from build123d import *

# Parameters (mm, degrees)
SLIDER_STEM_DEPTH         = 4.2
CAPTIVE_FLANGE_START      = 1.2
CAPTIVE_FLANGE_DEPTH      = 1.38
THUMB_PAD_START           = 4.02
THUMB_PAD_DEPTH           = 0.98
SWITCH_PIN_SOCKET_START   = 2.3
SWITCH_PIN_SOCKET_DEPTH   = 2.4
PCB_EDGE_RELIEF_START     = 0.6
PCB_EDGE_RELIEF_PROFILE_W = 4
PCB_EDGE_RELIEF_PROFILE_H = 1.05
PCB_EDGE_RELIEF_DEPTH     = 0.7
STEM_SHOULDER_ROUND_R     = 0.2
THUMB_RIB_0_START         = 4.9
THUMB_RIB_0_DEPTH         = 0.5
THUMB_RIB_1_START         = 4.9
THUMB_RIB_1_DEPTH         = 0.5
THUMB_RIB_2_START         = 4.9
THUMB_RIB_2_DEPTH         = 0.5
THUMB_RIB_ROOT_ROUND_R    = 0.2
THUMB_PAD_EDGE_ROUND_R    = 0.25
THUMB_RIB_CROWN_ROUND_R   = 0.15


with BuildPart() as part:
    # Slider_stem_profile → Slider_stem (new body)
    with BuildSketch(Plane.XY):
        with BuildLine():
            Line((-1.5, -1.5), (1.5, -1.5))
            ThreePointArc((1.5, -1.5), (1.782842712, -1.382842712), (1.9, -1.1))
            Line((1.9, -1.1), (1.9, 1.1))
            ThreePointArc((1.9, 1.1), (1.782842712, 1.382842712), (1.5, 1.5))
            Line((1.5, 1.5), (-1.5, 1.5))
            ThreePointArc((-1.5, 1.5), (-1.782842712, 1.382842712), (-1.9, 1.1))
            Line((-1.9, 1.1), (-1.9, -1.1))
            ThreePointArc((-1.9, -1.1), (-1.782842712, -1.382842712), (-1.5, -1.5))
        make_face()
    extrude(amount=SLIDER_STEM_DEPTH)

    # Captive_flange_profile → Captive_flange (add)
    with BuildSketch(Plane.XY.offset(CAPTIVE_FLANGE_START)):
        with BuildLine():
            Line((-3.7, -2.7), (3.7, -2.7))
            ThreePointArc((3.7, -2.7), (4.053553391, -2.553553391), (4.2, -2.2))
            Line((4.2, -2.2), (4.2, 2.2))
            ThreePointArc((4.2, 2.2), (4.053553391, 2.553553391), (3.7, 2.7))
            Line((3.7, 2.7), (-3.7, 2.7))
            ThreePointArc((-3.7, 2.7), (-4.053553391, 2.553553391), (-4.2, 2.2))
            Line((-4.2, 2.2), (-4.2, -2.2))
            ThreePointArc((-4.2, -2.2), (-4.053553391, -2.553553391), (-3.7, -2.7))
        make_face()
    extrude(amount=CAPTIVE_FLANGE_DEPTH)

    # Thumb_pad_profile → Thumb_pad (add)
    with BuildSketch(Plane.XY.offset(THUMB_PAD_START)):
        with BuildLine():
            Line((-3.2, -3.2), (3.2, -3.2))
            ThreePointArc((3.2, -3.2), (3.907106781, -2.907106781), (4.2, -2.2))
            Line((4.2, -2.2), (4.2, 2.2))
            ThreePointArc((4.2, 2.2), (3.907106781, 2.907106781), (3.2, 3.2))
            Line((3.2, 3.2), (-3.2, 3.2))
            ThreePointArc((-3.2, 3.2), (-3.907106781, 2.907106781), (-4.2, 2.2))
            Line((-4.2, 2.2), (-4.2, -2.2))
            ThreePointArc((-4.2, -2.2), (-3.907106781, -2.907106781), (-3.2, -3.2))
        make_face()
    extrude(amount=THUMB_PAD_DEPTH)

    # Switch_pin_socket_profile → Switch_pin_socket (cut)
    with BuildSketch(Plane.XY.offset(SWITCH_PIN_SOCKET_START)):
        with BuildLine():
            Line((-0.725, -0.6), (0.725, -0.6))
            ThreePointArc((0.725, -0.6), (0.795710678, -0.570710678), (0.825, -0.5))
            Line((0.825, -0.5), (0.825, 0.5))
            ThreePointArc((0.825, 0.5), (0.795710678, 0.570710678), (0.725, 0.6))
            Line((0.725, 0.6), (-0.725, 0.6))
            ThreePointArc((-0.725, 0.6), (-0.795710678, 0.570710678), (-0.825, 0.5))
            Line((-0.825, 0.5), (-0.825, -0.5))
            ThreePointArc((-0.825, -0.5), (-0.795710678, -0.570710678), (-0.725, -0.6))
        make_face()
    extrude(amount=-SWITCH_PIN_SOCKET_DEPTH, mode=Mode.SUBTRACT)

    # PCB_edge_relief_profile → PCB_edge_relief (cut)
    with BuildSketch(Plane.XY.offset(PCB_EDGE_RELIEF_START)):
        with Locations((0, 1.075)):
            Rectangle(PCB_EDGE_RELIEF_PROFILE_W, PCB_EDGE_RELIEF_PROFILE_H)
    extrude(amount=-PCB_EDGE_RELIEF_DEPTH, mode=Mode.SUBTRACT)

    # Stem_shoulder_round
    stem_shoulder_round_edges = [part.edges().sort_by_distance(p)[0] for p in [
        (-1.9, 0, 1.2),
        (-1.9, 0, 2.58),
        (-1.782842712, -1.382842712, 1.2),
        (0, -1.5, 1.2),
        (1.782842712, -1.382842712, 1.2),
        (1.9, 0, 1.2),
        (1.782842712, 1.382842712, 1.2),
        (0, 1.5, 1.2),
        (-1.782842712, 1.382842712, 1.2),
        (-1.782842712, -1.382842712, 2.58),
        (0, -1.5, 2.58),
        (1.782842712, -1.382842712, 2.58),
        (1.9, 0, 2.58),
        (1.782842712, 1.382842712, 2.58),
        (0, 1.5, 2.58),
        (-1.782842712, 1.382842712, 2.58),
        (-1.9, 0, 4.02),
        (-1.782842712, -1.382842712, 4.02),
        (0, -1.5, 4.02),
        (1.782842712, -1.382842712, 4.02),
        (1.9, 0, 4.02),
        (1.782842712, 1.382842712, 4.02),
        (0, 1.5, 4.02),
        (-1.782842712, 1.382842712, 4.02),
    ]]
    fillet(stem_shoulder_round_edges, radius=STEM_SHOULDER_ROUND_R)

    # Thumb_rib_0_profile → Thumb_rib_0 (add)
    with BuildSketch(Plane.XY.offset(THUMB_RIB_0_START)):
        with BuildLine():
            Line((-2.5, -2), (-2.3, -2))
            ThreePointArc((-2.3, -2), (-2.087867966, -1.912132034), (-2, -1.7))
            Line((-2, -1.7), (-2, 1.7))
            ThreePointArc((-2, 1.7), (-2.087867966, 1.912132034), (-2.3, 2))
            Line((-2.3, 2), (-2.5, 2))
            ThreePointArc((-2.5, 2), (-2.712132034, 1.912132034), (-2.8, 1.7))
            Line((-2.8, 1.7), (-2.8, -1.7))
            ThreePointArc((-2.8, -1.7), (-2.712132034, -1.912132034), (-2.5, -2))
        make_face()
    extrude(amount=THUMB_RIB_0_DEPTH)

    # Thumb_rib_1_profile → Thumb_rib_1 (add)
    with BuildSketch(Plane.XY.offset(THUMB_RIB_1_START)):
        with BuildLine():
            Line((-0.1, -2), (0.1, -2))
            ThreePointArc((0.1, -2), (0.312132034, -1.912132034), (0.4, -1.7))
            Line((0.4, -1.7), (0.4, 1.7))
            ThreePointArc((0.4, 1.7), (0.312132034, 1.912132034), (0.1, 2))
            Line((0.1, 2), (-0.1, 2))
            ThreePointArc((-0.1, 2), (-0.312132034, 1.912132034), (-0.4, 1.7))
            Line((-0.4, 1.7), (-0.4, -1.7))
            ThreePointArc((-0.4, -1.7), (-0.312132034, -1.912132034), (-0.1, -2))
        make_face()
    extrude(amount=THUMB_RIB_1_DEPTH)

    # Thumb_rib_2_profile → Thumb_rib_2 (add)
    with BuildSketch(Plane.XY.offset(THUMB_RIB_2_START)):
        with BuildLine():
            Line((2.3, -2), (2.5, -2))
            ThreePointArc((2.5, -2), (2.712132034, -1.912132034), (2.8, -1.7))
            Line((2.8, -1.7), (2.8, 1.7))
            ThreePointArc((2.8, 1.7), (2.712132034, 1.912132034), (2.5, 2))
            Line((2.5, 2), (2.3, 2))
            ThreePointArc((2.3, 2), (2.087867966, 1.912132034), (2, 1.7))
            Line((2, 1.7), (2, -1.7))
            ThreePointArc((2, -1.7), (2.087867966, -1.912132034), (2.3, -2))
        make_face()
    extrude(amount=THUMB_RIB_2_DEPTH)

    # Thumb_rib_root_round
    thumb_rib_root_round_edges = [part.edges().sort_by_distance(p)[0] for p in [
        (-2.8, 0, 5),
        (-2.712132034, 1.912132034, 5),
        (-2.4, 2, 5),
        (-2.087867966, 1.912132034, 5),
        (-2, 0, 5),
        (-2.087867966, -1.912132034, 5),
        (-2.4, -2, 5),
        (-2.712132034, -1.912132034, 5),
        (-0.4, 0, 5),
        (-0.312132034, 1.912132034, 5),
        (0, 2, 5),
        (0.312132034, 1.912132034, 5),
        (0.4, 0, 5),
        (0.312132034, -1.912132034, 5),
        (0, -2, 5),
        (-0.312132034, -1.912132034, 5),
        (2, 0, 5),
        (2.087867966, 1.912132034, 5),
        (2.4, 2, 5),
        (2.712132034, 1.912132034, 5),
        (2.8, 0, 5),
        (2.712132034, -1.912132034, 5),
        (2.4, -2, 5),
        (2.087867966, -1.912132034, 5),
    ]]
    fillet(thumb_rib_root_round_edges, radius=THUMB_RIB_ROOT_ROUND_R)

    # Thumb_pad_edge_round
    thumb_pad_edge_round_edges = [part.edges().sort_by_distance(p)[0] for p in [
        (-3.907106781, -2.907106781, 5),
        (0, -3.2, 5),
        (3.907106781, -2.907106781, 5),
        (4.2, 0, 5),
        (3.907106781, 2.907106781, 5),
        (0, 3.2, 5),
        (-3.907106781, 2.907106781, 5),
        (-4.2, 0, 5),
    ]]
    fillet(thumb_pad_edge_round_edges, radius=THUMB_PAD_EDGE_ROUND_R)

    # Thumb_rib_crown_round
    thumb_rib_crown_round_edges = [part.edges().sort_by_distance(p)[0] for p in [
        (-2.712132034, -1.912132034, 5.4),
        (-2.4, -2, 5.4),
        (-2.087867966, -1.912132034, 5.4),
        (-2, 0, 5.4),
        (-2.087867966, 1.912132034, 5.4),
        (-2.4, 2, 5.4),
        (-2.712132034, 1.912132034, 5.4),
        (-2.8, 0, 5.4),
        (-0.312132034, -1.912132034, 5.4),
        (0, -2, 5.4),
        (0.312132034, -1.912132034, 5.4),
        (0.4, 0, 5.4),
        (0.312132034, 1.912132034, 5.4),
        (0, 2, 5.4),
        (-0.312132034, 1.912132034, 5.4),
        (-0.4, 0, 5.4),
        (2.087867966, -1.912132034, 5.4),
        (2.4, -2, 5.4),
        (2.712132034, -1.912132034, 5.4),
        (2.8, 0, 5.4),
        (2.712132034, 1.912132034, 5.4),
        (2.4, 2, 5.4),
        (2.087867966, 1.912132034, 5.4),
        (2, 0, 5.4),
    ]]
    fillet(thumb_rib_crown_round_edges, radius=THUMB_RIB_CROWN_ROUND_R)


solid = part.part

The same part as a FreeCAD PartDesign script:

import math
import FreeCAD as App
import Part
import Sketcher


def edges_at(feature, points):
    """Names of the edges that pass closest to the given points."""
    edges = feature.Shape.Edges
    near = lambda p: min(range(len(edges)), key=lambda i: edges[i].distToShape(Part.Vertex(*p))[0])
    return sorted({f"Edge{near(p) + 1}" for p in points})

doc = App.newDocument("Part")
params = doc.addObject("Spreadsheet::Sheet", "Params")
for row, (alias, value) in enumerate([
    ("sketch1_radius", "0.4 mm"),
    ("sketch1_width", "3 mm"),
    ("sketch1_height", "2.2 mm"),
    ("pad1_length", "4.2 mm"),
    ("sketch2_radius", "0.5 mm"),
    ("sketch2_width", "7.4 mm"),
    ("sketch2_height", "4.4 mm"),
    ("pad2_length", "1.38 mm"),
    ("sketch3_radius", "1 mm"),
    ("sketch3_width", "6.4 mm"),
    ("sketch3_height", "4.4 mm"),
    ("pad3_length", "0.98 mm"),
    ("sketch4_radius", "0.1 mm"),
    ("sketch4_height", "1 mm"),
    ("sketch4_width", "1.45 mm"),
    ("pocket1_length", "2.4 mm"),
    ("sketch5_width", "4 mm"),
    ("sketch5_height", "1.05 mm"),
    ("pocket2_length", "0.7 mm"),
    ("fillet_radius", "0.2 mm"),
    ("sketch6_radius", "0.3 mm"),
    ("sketch6_width", "0.2 mm"),
    ("sketch6_height", "3.4 mm"),
    ("pad4_length", "0.5 mm"),
    ("sketch7_radius", "0.3 mm"),
    ("sketch7_width", "0.2 mm"),
    ("sketch7_height", "3.4 mm"),
    ("pad5_length", "0.5 mm"),
    ("sketch8_radius", "0.3 mm"),
    ("sketch8_width", "0.2 mm"),
    ("sketch8_height", "3.4 mm"),
    ("pad6_length", "0.5 mm"),
    ("fillet2_radius", "0.2 mm"),
    ("fillet3_radius", "0.25 mm"),
    ("fillet4_radius", "0.15 mm"),
], start=1):
    params.set(f"A{row}", alias)
    params.set(f"B{row}", "=" + value)
    params.setAlias(f"B{row}", alias)

body = doc.addObject("PartDesign::Body", "Body")

# Sketch on XY plane
sketch1 = body.newObject("Sketcher::SketchObject", "Sketch")
sketch1.AttachmentSupport = (doc.getObject("XY_Plane"), [""])
sketch1.MapMode = "FlatFace"
sketch1.addGeometry([
    Part.LineSegment(App.Vector(-1.5, -1.5, 0), App.Vector(1.5, -1.5, 0)),  # 0
    Part.ArcOfCircle(Part.Circle(App.Vector(1.5, -1.1, 0), App.Vector(0, 0, 1), 0.4), math.radians(-90), math.radians(0)),  # 1
    Part.LineSegment(App.Vector(1.9, -1.1, 0), App.Vector(1.9, 1.1, 0)),  # 2
    Part.ArcOfCircle(Part.Circle(App.Vector(1.5, 1.1, 0), App.Vector(0, 0, 1), 0.4), math.radians(0), math.radians(90)),  # 3
    Part.LineSegment(App.Vector(1.5, 1.5, 0), App.Vector(-1.5, 1.5, 0)),  # 4
    Part.ArcOfCircle(Part.Circle(App.Vector(-1.5, 1.1, 0), App.Vector(0, 0, 1), 0.4), math.radians(90), math.radians(180)),  # 5
    Part.LineSegment(App.Vector(-1.9, 1.1, 0), App.Vector(-1.9, -1.1, 0)),  # 6
    Part.ArcOfCircle(Part.Circle(App.Vector(-1.5, -1.1, 0), App.Vector(0, 0, 1), 0.4), math.radians(-180), math.radians(-90)),  # 7
], False)
sketch1.addConstraint([
    Sketcher.Constraint("Tangent", 0, 2, 1, 1),
    Sketcher.Constraint("Tangent", 1, 2, 2, 1),
    Sketcher.Constraint("Tangent", 2, 2, 3, 1),
    Sketcher.Constraint("Tangent", 3, 2, 4, 1),
    Sketcher.Constraint("Tangent", 4, 2, 5, 1),
    Sketcher.Constraint("Tangent", 5, 2, 6, 1),
    Sketcher.Constraint("Tangent", 6, 2, 7, 1),
    Sketcher.Constraint("Tangent", 7, 2, 0, 1),
    Sketcher.Constraint("Horizontal", 0),
    Sketcher.Constraint("Vertical", 2),
    Sketcher.Constraint("Horizontal", 4),
    Sketcher.Constraint("Vertical", 6),
    Sketcher.Constraint("Equal", 1, 3),
    Sketcher.Constraint("Equal", 3, 5),
    Sketcher.Constraint("Equal", 5, 7),
    Sketcher.Constraint("Symmetric", 1, 3, 5, 3, -1, 1),
    Sketcher.Constraint("Radius", 1, 0.4),
    Sketcher.Constraint("DistanceX", 0, 1, 0, 2, 3.0),
    Sketcher.Constraint("DistanceY", 2, 1, 2, 2, 2.2),
])
sketch1.setExpression("Constraints[16]", "Params.sketch1_radius")
sketch1.setExpression("Constraints[17]", "Params.sketch1_width")
sketch1.setExpression("Constraints[18]", "Params.sketch1_height")
pad1 = body.newObject("PartDesign::Pad", "Pad")
pad1.Profile = sketch1
pad1.setExpression("Length", "Params.pad1_length")

# Sketch on XY plane
sketch2 = body.newObject("Sketcher::SketchObject", "Sketch001")
sketch2.AttachmentSupport = (doc.getObject("XY_Plane"), [""])
sketch2.MapMode = "FlatFace"
sketch2.AttachmentOffset = App.Placement(App.Vector(0, 0, 1.2), App.Rotation())
sketch2.addGeometry([
    Part.LineSegment(App.Vector(-3.7, -2.7, 0), App.Vector(3.7, -2.7, 0)),  # 0
    Part.ArcOfCircle(Part.Circle(App.Vector(3.7, -2.2, 0), App.Vector(0, 0, 1), 0.5), math.radians(-90), math.radians(0)),  # 1
    Part.LineSegment(App.Vector(4.2, -2.2, 0), App.Vector(4.2, 2.2, 0)),  # 2
    Part.ArcOfCircle(Part.Circle(App.Vector(3.7, 2.2, 0), App.Vector(0, 0, 1), 0.5), math.radians(0), math.radians(90)),  # 3
    Part.LineSegment(App.Vector(3.7, 2.7, 0), App.Vector(-3.7, 2.7, 0)),  # 4
    Part.ArcOfCircle(Part.Circle(App.Vector(-3.7, 2.2, 0), App.Vector(0, 0, 1), 0.5), math.radians(90), math.radians(180)),  # 5
    Part.LineSegment(App.Vector(-4.2, 2.2, 0), App.Vector(-4.2, -2.2, 0)),  # 6
    Part.ArcOfCircle(Part.Circle(App.Vector(-3.7, -2.2, 0), App.Vector(0, 0, 1), 0.5), math.radians(180), math.radians(270)),  # 7
], False)
sketch2.addConstraint([
    Sketcher.Constraint("Tangent", 0, 2, 1, 1),
    Sketcher.Constraint("Tangent", 1, 2, 2, 1),
    Sketcher.Constraint("Tangent", 2, 2, 3, 1),
    Sketcher.Constraint("Tangent", 3, 2, 4, 1),
    Sketcher.Constraint("Tangent", 4, 2, 5, 1),
    Sketcher.Constraint("Tangent", 5, 2, 6, 1),
    Sketcher.Constraint("Tangent", 6, 2, 7, 1),
    Sketcher.Constraint("Tangent", 7, 2, 0, 1),
    Sketcher.Constraint("Horizontal", 0),
    Sketcher.Constraint("Vertical", 2),
    Sketcher.Constraint("Horizontal", 4),
    Sketcher.Constraint("Vertical", 6),
    Sketcher.Constraint("Equal", 1, 3),
    Sketcher.Constraint("Equal", 3, 5),
    Sketcher.Constraint("Equal", 5, 7),
    Sketcher.Constraint("Symmetric", 1, 3, 5, 3, -1, 1),
    Sketcher.Constraint("Radius", 1, 0.5),
    Sketcher.Constraint("DistanceX", 0, 1, 0, 2, 7.4),
    Sketcher.Constraint("DistanceY", 2, 1, 2, 2, 4.4),
])
sketch2.setExpression("Constraints[16]", "Params.sketch2_radius")
sketch2.setExpression("Constraints[17]", "Params.sketch2_width")
sketch2.setExpression("Constraints[18]", "Params.sketch2_height")
pad2 = body.newObject("PartDesign::Pad", "Pad001")
pad2.Profile = sketch2
pad2.setExpression("Length", "Params.pad2_length")

# Sketch on XY plane
sketch3 = body.newObject("Sketcher::SketchObject", "Sketch002")
sketch3.AttachmentSupport = (doc.getObject("XY_Plane"), [""])
sketch3.MapMode = "FlatFace"
sketch3.AttachmentOffset = App.Placement(App.Vector(0, 0, 4.02), App.Rotation())
sketch3.addGeometry([
    Part.LineSegment(App.Vector(-3.2, -3.2, 0), App.Vector(3.2, -3.2, 0)),  # 0
    Part.ArcOfCircle(Part.Circle(App.Vector(3.2, -2.2, 0), App.Vector(0, 0, 1), 1), math.radians(-90), math.radians(0)),  # 1
    Part.LineSegment(App.Vector(4.2, -2.2, 0), App.Vector(4.2, 2.2, 0)),  # 2
    Part.ArcOfCircle(Part.Circle(App.Vector(3.2, 2.2, 0), App.Vector(0, 0, 1), 1), math.radians(0), math.radians(90)),  # 3
    Part.LineSegment(App.Vector(3.2, 3.2, 0), App.Vector(-3.2, 3.2, 0)),  # 4
    Part.ArcOfCircle(Part.Circle(App.Vector(-3.2, 2.2, 0), App.Vector(0, 0, 1), 1), math.radians(90), math.radians(180)),  # 5
    Part.LineSegment(App.Vector(-4.2, 2.2, 0), App.Vector(-4.2, -2.2, 0)),  # 6
    Part.ArcOfCircle(Part.Circle(App.Vector(-3.2, -2.2, 0), App.Vector(0, 0, 1), 1), math.radians(-180), math.radians(-90)),  # 7
], False)
sketch3.addConstraint([
    Sketcher.Constraint("Tangent", 0, 2, 1, 1),
    Sketcher.Constraint("Tangent", 1, 2, 2, 1),
    Sketcher.Constraint("Tangent", 2, 2, 3, 1),
    Sketcher.Constraint("Tangent", 3, 2, 4, 1),
    Sketcher.Constraint("Tangent", 4, 2, 5, 1),
    Sketcher.Constraint("Tangent", 5, 2, 6, 1),
    Sketcher.Constraint("Tangent", 6, 2, 7, 1),
    Sketcher.Constraint("Tangent", 7, 2, 0, 1),
    Sketcher.Constraint("Horizontal", 0),
    Sketcher.Constraint("Vertical", 2),
    Sketcher.Constraint("Horizontal", 4),
    Sketcher.Constraint("Vertical", 6),
    Sketcher.Constraint("Equal", 1, 3),
    Sketcher.Constraint("Equal", 3, 5),
    Sketcher.Constraint("Equal", 5, 7),
    Sketcher.Constraint("Symmetric", 1, 3, 5, 3, -1, 1),
    Sketcher.Constraint("Radius", 1, 1.0),
    Sketcher.Constraint("DistanceX", 0, 1, 0, 2, 6.4),
    Sketcher.Constraint("DistanceY", 2, 1, 2, 2, 4.4),
])
sketch3.setExpression("Constraints[16]", "Params.sketch3_radius")
sketch3.setExpression("Constraints[17]", "Params.sketch3_width")
sketch3.setExpression("Constraints[18]", "Params.sketch3_height")
pad3 = body.newObject("PartDesign::Pad", "Pad002")
pad3.Profile = sketch3
pad3.setExpression("Length", "Params.pad3_length")

# Sketch on XY plane
sketch4 = body.newObject("Sketcher::SketchObject", "Sketch003")
sketch4.AttachmentSupport = (doc.getObject("XY_Plane"), [""])
sketch4.MapMode = "FlatFace"
sketch4.AttachmentOffset = App.Placement(App.Vector(0, 0, 2.3), App.Rotation())
sketch4.addGeometry([
    Part.LineSegment(App.Vector(-0.72, -0.6, 0), App.Vector(0.72, -0.6, 0)),  # 0
    Part.ArcOfCircle(Part.Circle(App.Vector(0.72, -0.5, 0), App.Vector(0, 0, 1), 0.1), math.radians(-90), math.radians(0)),  # 1
    Part.LineSegment(App.Vector(0.82, -0.5, 0), App.Vector(0.82, 0.5, 0)),  # 2
    Part.ArcOfCircle(Part.Circle(App.Vector(0.72, 0.5, 0), App.Vector(0, 0, 1), 0.1), math.radians(0), math.radians(90)),  # 3
    Part.LineSegment(App.Vector(0.72, 0.6, 0), App.Vector(-0.72, 0.6, 0)),  # 4
    Part.ArcOfCircle(Part.Circle(App.Vector(-0.72, 0.5, 0), App.Vector(0, 0, 1), 0.1), math.radians(90), math.radians(180)),  # 5
    Part.LineSegment(App.Vector(-0.82, 0.5, 0), App.Vector(-0.82, -0.5, 0)),  # 6
    Part.ArcOfCircle(Part.Circle(App.Vector(-0.72, -0.5, 0), App.Vector(0, 0, 1), 0.1), math.radians(180), math.radians(270)),  # 7
], False)
sketch4.addConstraint([
    Sketcher.Constraint("Tangent", 0, 2, 1, 1),
    Sketcher.Constraint("Tangent", 1, 2, 2, 1),
    Sketcher.Constraint("Tangent", 2, 2, 3, 1),
    Sketcher.Constraint("Tangent", 3, 2, 4, 1),
    Sketcher.Constraint("Tangent", 4, 2, 5, 1),
    Sketcher.Constraint("Tangent", 5, 2, 6, 1),
    Sketcher.Constraint("Tangent", 6, 2, 7, 1),
    Sketcher.Constraint("Tangent", 7, 2, 0, 1),
    Sketcher.Constraint("Horizontal", 0),
    Sketcher.Constraint("Vertical", 2),
    Sketcher.Constraint("Horizontal", 4),
    Sketcher.Constraint("Vertical", 6),
    Sketcher.Constraint("Equal", 1, 3),
    Sketcher.Constraint("Equal", 3, 5),
    Sketcher.Constraint("Equal", 5, 7),
    Sketcher.Constraint("Symmetric", 1, 3, 5, 3, -1, 1),
    Sketcher.Constraint("Radius", 1, 0.1),
    Sketcher.Constraint("DistanceY", 2, 1, 2, 2, 1.0),
    Sketcher.Constraint("DistanceX", 0, 1, 0, 2, 1.45),
])
sketch4.setExpression("Constraints[16]", "Params.sketch4_radius")
sketch4.setExpression("Constraints[17]", "Params.sketch4_height")
sketch4.setExpression("Constraints[18]", "Params.sketch4_width")
pocket1 = body.newObject("PartDesign::Pocket", "Pocket")
pocket1.Profile = sketch4
pocket1.setExpression("Length", "Params.pocket1_length")

# Sketch on XY plane
sketch5 = body.newObject("Sketcher::SketchObject", "Sketch004")
sketch5.AttachmentSupport = (doc.getObject("XY_Plane"), [""])
sketch5.MapMode = "FlatFace"
sketch5.AttachmentOffset = App.Placement(App.Vector(0, 0, 0.6), App.Rotation())
sketch5.addGeometry([
    Part.LineSegment(App.Vector(-2, 1.6, 0), App.Vector(-2, 0.6, 0)),
    Part.LineSegment(App.Vector(-2, 0.6, 0), App.Vector(2, 0.6, 0)),
    Part.LineSegment(App.Vector(2, 0.6, 0), App.Vector(2, 1.6, 0)),
    Part.LineSegment(App.Vector(2, 1.6, 0), App.Vector(-2, 1.6, 0)),
], False)
sketch5.addConstraint([
    Sketcher.Constraint("Coincident", 0, 2, 1, 1),
    Sketcher.Constraint("Coincident", 1, 2, 2, 1),
    Sketcher.Constraint("Coincident", 2, 2, 3, 1),
    Sketcher.Constraint("Coincident", 3, 2, 0, 1),
    Sketcher.Constraint("Vertical", 0),
    Sketcher.Constraint("Horizontal", 1),
    Sketcher.Constraint("Vertical", 2),
    Sketcher.Constraint("Horizontal", 3),
    Sketcher.Constraint("DistanceX", 1, 1, 1, 2, 4.0),
    Sketcher.Constraint("DistanceX", 0, 2, -1, 1, 2.0),
    Sketcher.Constraint("DistanceY", 0, 2, 0, 1, 1.05),
    Sketcher.Constraint("DistanceY", -1, 1, 2, 2, 1.6),
])
sketch5.setExpression("Constraints[8]", "Params.sketch5_width")
sketch5.setExpression("Constraints[10]", "Params.sketch5_height")
pocket2 = body.newObject("PartDesign::Pocket", "Pocket001")
pocket2.Profile = sketch5
pocket2.setExpression("Length", "Params.pocket2_length")
doc.recompute()

fillet = body.newObject("PartDesign::Fillet", "Fillet")
fillet.Base = (pocket2, edges_at(pocket2, [
    (-1.9, 0, 1.2),
    (-1.9, 0, 2.58),
    (-1.783, -1.383, 1.2),
    (0, -1.5, 1.2),
    (1.783, -1.383, 1.2),
    (1.9, 0, 1.2),
    (1.783, 1.383, 1.2),
    (0, 1.5, 1.2),
    (-1.783, 1.383, 1.2),
    (-1.783, -1.383, 2.58),
    (0, -1.5, 2.58),
    (1.783, -1.383, 2.58),
    (1.9, 0, 2.58),
    (1.783, 1.383, 2.58),
    (0, 1.5, 2.58),
    (-1.783, 1.383, 2.58),
    (-1.9, 0, 4.02),
    (-1.783, -1.383, 4.02),
    (0, -1.5, 4.02),
    (1.783, -1.383, 4.02),
    (1.9, 0, 4.02),
    (1.783, 1.383, 4.02),
    (0, 1.5, 4.02),
    (-1.783, 1.383, 4.02),
]))
fillet.setExpression("Radius", "Params.fillet_radius")

# Sketch on XY plane
sketch6 = body.newObject("Sketcher::SketchObject", "Sketch005")
sketch6.AttachmentSupport = (doc.getObject("XY_Plane"), [""])
sketch6.MapMode = "FlatFace"
sketch6.AttachmentOffset = App.Placement(App.Vector(0, 0, 4.9), App.Rotation())
sketch6.addGeometry([
    Part.LineSegment(App.Vector(-2.5, -2, 0), App.Vector(-2.3, -2, 0)),  # 0
    Part.ArcOfCircle(Part.Circle(App.Vector(-2.3, -1.7, 0), App.Vector(0, 0, 1), 0.3), math.radians(-90), math.radians(0)),  # 1
    Part.LineSegment(App.Vector(-2, -1.7, 0), App.Vector(-2, 1.7, 0)),  # 2
    Part.ArcOfCircle(Part.Circle(App.Vector(-2.3, 1.7, 0), App.Vector(0, 0, 1), 0.3), math.radians(0), math.radians(90)),  # 3
    Part.LineSegment(App.Vector(-2.3, 2, 0), App.Vector(-2.5, 2, 0)),  # 4
    Part.ArcOfCircle(Part.Circle(App.Vector(-2.5, 1.7, 0), App.Vector(0, 0, 1), 0.3), math.radians(90), math.radians(180)),  # 5
    Part.LineSegment(App.Vector(-2.8, 1.7, 0), App.Vector(-2.8, -1.7, 0)),  # 6
    Part.ArcOfCircle(Part.Circle(App.Vector(-2.5, -1.7, 0), App.Vector(0, 0, 1), 0.3), math.radians(-180), math.radians(-90)),  # 7
], False)
sketch6.addConstraint([
    Sketcher.Constraint("Tangent", 0, 2, 1, 1),
    Sketcher.Constraint("Tangent", 1, 2, 2, 1),
    Sketcher.Constraint("Tangent", 2, 2, 3, 1),
    Sketcher.Constraint("Tangent", 3, 2, 4, 1),
    Sketcher.Constraint("Tangent", 4, 2, 5, 1),
    Sketcher.Constraint("Tangent", 5, 2, 6, 1),
    Sketcher.Constraint("Tangent", 6, 2, 7, 1),
    Sketcher.Constraint("Tangent", 7, 2, 0, 1),
    Sketcher.Constraint("Horizontal", 0),
    Sketcher.Constraint("Vertical", 2),
    Sketcher.Constraint("Horizontal", 4),
    Sketcher.Constraint("Vertical", 6),
    Sketcher.Constraint("Equal", 1, 3),
    Sketcher.Constraint("Equal", 3, 5),
    Sketcher.Constraint("Equal", 5, 7),
    Sketcher.Constraint("Radius", 1, 0.3),
    Sketcher.Constraint("DistanceX", 0, 1, 0, 2, 0.2),
    Sketcher.Constraint("DistanceY", 2, 1, 2, 2, 3.4),
    Sketcher.Constraint("DistanceY", 0, 2, -1, 1, 2.0),
    Sketcher.Constraint("DistanceX", 1, 2, -1, 1, 2.0),
])
sketch6.setExpression("Constraints[15]", "Params.sketch6_radius")
sketch6.setExpression("Constraints[16]", "Params.sketch6_width")
sketch6.setExpression("Constraints[17]", "Params.sketch6_height")
pad4 = body.newObject("PartDesign::Pad", "Pad003")
pad4.Profile = sketch6
pad4.setExpression("Length", "Params.pad4_length")

# Sketch on XY plane
sketch7 = body.newObject("Sketcher::SketchObject", "Sketch006")
sketch7.AttachmentSupport = (doc.getObject("XY_Plane"), [""])
sketch7.MapMode = "FlatFace"
sketch7.AttachmentOffset = App.Placement(App.Vector(0, 0, 4.9), App.Rotation())
sketch7.addGeometry([
    Part.LineSegment(App.Vector(-0.1, -2, 0), App.Vector(0.1, -2, 0)),  # 0
    Part.ArcOfCircle(Part.Circle(App.Vector(0.1, -1.7, 0), App.Vector(0, 0, 1), 0.3), math.radians(-90), math.radians(0)),  # 1
    Part.LineSegment(App.Vector(0.4, -1.7, 0), App.Vector(0.4, 1.7, 0)),  # 2
    Part.ArcOfCircle(Part.Circle(App.Vector(0.1, 1.7, 0), App.Vector(0, 0, 1), 0.3), math.radians(0), math.radians(90)),  # 3
    Part.LineSegment(App.Vector(0.1, 2, 0), App.Vector(-0.1, 2, 0)),  # 4
    Part.ArcOfCircle(Part.Circle(App.Vector(-0.1, 1.7, 0), App.Vector(0, 0, 1), 0.3), math.radians(90), math.radians(180)),  # 5
    Part.LineSegment(App.Vector(-0.4, 1.7, 0), App.Vector(-0.4, -1.7, 0)),  # 6
    Part.ArcOfCircle(Part.Circle(App.Vector(-0.1, -1.7, 0), App.Vector(0, 0, 1), 0.3), math.radians(-180), math.radians(-90)),  # 7
], False)
sketch7.addConstraint([
    Sketcher.Constraint("Tangent", 0, 2, 1, 1),
    Sketcher.Constraint("Tangent", 1, 2, 2, 1),
    Sketcher.Constraint("Tangent", 2, 2, 3, 1),
    Sketcher.Constraint("Tangent", 3, 2, 4, 1),
    Sketcher.Constraint("Tangent", 4, 2, 5, 1),
    Sketcher.Constraint("Tangent", 5, 2, 6, 1),
    Sketcher.Constraint("Tangent", 6, 2, 7, 1),
    Sketcher.Constraint("Tangent", 7, 2, 0, 1),
    Sketcher.Constraint("Horizontal", 0),
    Sketcher.Constraint("Vertical", 2),
    Sketcher.Constraint("Horizontal", 4),
    Sketcher.Constraint("Vertical", 6),
    Sketcher.Constraint("Equal", 1, 3),
    Sketcher.Constraint("Equal", 3, 5),
    Sketcher.Constraint("Equal", 5, 7),
    Sketcher.Constraint("Symmetric", 1, 3, 5, 3, -1, 1),
    Sketcher.Constraint("Radius", 1, 0.3),
    Sketcher.Constraint("DistanceX", 0, 1, 0, 2, 0.2),
    Sketcher.Constraint("DistanceY", 2, 1, 2, 2, 3.4),
])
sketch7.setExpression("Constraints[16]", "Params.sketch7_radius")
sketch7.setExpression("Constraints[17]", "Params.sketch7_width")
sketch7.setExpression("Constraints[18]", "Params.sketch7_height")
pad5 = body.newObject("PartDesign::Pad", "Pad004")
pad5.Profile = sketch7
pad5.setExpression("Length", "Params.pad5_length")

# Sketch on XY plane
sketch8 = body.newObject("Sketcher::SketchObject", "Sketch007")
sketch8.AttachmentSupport = (doc.getObject("XY_Plane"), [""])
sketch8.MapMode = "FlatFace"
sketch8.AttachmentOffset = App.Placement(App.Vector(0, 0, 4.9), App.Rotation())
sketch8.addGeometry([
    Part.LineSegment(App.Vector(2.3, -2, 0), App.Vector(2.5, -2, 0)),  # 0
    Part.ArcOfCircle(Part.Circle(App.Vector(2.5, -1.7, 0), App.Vector(0, 0, 1), 0.3), math.radians(-90), math.radians(0)),  # 1
    Part.LineSegment(App.Vector(2.8, -1.7, 0), App.Vector(2.8, 1.7, 0)),  # 2
    Part.ArcOfCircle(Part.Circle(App.Vector(2.5, 1.7, 0), App.Vector(0, 0, 1), 0.3), math.radians(0), math.radians(90)),  # 3
    Part.LineSegment(App.Vector(2.5, 2, 0), App.Vector(2.3, 2, 0)),  # 4
    Part.ArcOfCircle(Part.Circle(App.Vector(2.3, 1.7, 0), App.Vector(0, 0, 1), 0.3), math.radians(90), math.radians(180)),  # 5
    Part.LineSegment(App.Vector(2, 1.7, 0), App.Vector(2, -1.7, 0)),  # 6
    Part.ArcOfCircle(Part.Circle(App.Vector(2.3, -1.7, 0), App.Vector(0, 0, 1), 0.3), math.radians(-180), math.radians(-90)),  # 7
], False)
sketch8.addConstraint([
    Sketcher.Constraint("Tangent", 0, 2, 1, 1),
    Sketcher.Constraint("Tangent", 1, 2, 2, 1),
    Sketcher.Constraint("Tangent", 2, 2, 3, 1),
    Sketcher.Constraint("Tangent", 3, 2, 4, 1),
    Sketcher.Constraint("Tangent", 4, 2, 5, 1),
    Sketcher.Constraint("Tangent", 5, 2, 6, 1),
    Sketcher.Constraint("Tangent", 6, 2, 7, 1),
    Sketcher.Constraint("Tangent", 7, 2, 0, 1),
    Sketcher.Constraint("Horizontal", 0),
    Sketcher.Constraint("Vertical", 2),
    Sketcher.Constraint("Horizontal", 4),
    Sketcher.Constraint("Vertical", 6),
    Sketcher.Constraint("Equal", 1, 3),
    Sketcher.Constraint("Equal", 3, 5),
    Sketcher.Constraint("Equal", 5, 7),
    Sketcher.Constraint("Radius", 1, 0.3),
    Sketcher.Constraint("DistanceX", 0, 1, 0, 2, 0.2),
    Sketcher.Constraint("DistanceY", 2, 1, 2, 2, 3.4),
    Sketcher.Constraint("DistanceY", 0, 2, -1, 1, 2.0),
    Sketcher.Constraint("DistanceX", -1, 1, 5, 2, 2.0),
])
sketch8.setExpression("Constraints[15]", "Params.sketch8_radius")
sketch8.setExpression("Constraints[16]", "Params.sketch8_width")
sketch8.setExpression("Constraints[17]", "Params.sketch8_height")
pad6 = body.newObject("PartDesign::Pad", "Pad005")
pad6.Profile = sketch8
pad6.setExpression("Length", "Params.pad6_length")
doc.recompute()

fillet2 = body.newObject("PartDesign::Fillet", "Fillet001")
fillet2.Base = (pad6, edges_at(pad6, [
    (-2.8, 0, 5),
    (-2.712, 1.912, 5),
    (-2.4, 2, 5),
    (-2.088, 1.912, 5),
    (-2, 0, 5),
    (-2.088, -1.912, 5),
    (-2.4, -2, 5),
    (-2.712, -1.912, 5),
    (-0.4, 0, 5),
    (-0.312, 1.912, 5),
    (0, 2, 5),
    (0.312, 1.912, 5),
    (0.4, 0, 5),
    (0.312, -1.912, 5),
    (0, -2, 5),
    (-0.312, -1.912, 5),
    (2, 0, 5),
    (2.088, 1.912, 5),
    (2.4, 2, 5),
    (2.712, 1.912, 5),
    (2.8, 0, 5),
    (2.712, -1.912, 5),
    (2.4, -2, 5),
    (2.088, -1.912, 5),
]))
fillet2.setExpression("Radius", "Params.fillet2_radius")
doc.recompute()

fillet3 = body.newObject("PartDesign::Fillet", "Fillet002")
fillet3.Base = (fillet2, edges_at(fillet2, [
    (-3.907, -2.907, 5),
    (0, -3.2, 5),
    (3.907, -2.907, 5),
    (4.2, 0, 5),
    (3.907, 2.907, 5),
    (0, 3.2, 5),
    (-3.907, 2.907, 5),
    (-4.2, 0, 5),
]))
fillet3.setExpression("Radius", "Params.fillet3_radius")
doc.recompute()

fillet4 = body.newObject("PartDesign::Fillet", "Fillet003")
fillet4.Base = (fillet3, edges_at(fillet3, [
    (-2.712, -1.912, 5.4),
    (-2.4, -2, 5.4),
    (-2.088, -1.912, 5.4),
    (-2, 0, 5.4),
    (-2.088, 1.912, 5.4),
    (-2.4, 2, 5.4),
    (-2.712, 1.912, 5.4),
    (-2.8, 0, 5.4),
    (-0.312, -1.912, 5.4),
    (0, -2, 5.4),
    (0.312, -1.912, 5.4),
    (0.4, 0, 5.4),
    (0.312, 1.912, 5.4),
    (0, 2, 5.4),
    (-0.312, 1.912, 5.4),
    (-0.4, 0, 5.4),
    (2.088, -1.912, 5.4),
    (2.4, -2, 5.4),
    (2.712, -1.912, 5.4),
    (2.8, 0, 5.4),
    (2.712, 1.912, 5.4),
    (2.4, 2, 5.4),
    (2.088, 1.912, 5.4),
    (2, 0, 5.4),
]))
fillet4.setExpression("Radius", "Params.fillet4_radius")

doc.recompute()
